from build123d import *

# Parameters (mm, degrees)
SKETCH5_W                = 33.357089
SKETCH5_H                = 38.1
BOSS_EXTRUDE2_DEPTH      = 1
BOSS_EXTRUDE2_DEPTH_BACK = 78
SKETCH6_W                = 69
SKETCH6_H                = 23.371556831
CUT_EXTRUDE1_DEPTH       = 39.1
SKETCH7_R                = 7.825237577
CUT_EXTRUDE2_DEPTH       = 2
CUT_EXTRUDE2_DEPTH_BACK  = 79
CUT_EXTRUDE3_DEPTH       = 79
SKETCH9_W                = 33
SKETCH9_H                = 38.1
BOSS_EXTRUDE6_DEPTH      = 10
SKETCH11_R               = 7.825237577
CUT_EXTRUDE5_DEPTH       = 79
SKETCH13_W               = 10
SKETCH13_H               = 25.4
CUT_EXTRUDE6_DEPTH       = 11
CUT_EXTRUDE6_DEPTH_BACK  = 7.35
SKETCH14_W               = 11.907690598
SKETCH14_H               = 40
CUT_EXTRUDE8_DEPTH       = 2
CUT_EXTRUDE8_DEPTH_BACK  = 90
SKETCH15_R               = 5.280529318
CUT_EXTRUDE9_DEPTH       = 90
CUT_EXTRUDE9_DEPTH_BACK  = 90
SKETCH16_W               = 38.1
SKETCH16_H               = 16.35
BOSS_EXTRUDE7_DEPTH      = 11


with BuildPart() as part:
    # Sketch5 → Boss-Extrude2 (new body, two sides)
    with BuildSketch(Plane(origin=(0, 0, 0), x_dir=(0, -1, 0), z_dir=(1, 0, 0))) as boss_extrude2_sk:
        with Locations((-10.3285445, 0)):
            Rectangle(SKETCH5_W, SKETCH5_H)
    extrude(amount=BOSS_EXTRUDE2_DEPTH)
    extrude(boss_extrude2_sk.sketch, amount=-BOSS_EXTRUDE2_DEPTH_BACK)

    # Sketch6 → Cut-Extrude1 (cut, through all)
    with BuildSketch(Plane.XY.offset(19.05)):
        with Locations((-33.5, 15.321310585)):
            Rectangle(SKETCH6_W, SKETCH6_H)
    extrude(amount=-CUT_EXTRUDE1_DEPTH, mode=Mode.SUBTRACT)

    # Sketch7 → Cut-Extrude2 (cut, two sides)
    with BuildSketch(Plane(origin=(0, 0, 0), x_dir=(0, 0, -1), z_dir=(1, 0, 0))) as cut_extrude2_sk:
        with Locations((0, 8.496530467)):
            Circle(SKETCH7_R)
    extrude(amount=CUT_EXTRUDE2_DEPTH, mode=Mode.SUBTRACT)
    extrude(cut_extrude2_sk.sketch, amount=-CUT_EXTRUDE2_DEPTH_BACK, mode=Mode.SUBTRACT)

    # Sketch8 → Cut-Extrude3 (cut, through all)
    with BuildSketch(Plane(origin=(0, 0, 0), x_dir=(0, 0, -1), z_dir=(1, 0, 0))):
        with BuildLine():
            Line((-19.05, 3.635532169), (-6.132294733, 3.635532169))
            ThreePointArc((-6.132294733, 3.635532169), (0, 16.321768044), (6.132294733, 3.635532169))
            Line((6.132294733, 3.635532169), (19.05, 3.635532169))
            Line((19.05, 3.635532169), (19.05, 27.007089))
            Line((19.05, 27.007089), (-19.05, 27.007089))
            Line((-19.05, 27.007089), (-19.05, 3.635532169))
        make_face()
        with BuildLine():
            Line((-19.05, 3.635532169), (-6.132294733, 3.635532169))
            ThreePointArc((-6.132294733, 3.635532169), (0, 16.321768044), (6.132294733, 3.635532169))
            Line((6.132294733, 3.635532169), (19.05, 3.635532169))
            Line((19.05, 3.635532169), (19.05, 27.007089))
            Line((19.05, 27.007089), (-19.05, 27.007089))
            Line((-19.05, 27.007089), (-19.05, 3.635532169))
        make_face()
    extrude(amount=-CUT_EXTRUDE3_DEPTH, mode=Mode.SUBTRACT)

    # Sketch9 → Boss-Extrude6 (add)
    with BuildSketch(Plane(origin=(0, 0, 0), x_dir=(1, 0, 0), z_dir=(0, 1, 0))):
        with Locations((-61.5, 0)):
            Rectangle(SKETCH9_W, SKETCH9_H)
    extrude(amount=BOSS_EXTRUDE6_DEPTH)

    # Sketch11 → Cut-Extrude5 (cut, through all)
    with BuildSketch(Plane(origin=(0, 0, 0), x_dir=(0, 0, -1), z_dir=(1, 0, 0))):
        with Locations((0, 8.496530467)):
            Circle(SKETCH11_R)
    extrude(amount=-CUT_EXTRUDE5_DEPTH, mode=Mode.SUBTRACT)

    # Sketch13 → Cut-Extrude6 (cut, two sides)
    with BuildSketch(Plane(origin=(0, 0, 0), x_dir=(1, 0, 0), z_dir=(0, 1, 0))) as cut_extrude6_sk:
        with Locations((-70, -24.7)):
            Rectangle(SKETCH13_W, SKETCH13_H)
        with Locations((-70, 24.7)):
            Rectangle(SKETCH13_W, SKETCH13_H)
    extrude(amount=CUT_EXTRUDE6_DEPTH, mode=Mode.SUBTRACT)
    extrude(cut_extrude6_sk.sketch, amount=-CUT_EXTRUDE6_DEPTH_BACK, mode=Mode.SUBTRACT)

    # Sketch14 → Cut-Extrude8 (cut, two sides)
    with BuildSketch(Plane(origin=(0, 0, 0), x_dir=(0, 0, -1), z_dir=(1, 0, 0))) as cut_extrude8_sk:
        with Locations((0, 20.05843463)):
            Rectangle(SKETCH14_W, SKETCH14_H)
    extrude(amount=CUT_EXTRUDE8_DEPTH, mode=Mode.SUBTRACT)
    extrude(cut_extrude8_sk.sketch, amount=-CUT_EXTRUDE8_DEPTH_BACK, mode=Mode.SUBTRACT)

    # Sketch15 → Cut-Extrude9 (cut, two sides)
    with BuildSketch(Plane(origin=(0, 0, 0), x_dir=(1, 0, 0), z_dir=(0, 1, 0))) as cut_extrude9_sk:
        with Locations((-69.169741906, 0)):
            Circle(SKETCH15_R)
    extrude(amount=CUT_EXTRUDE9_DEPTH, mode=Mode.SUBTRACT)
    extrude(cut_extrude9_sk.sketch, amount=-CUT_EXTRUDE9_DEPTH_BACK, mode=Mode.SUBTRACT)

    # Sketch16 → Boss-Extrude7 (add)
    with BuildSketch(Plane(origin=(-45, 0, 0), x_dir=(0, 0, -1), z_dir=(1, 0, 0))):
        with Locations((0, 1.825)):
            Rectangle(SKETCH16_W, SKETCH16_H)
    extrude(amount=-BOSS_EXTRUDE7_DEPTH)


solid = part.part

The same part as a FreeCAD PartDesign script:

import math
import FreeCAD as App
import Part
import Sketcher

V = App.Vector
Q = App.Units.Quantity


def add_polygon(sketch, points):
    """Adds a closed chain of lines whose ends are joined by coincident constraints."""
    first, n = sketch.GeometryCount, len(points)
    for a, b in zip(points, points[1:] + points[:1]):
        sketch.addGeometry(Part.LineSegment(App.Vector(*a, 0), App.Vector(*b, 0)), False)
    for i in range(n):
        sketch.addConstraint(Sketcher.Constraint("Coincident", first + i, 2, first + (i + 1) % n, 1))

doc = App.newDocument("Part")
params = doc.addObject("Spreadsheet::Sheet", "Params")
for row, (alias, value) in enumerate([
    ("sketch1_height", "38.1 mm"),
    ("pad1_length", "1 mm"),
    ("pad1_length2", "78 mm"),
    ("sketch2_width", "69 mm"),
    ("sketch4_height", "38.1 mm"),
    ("sketch5_width", "33 mm"),
    ("sketch5_height", "38.1 mm"),
    ("pad2_length", "10 mm"),
    ("sketch7_width", "10 mm"),
    ("sketch7_height", "25.4 mm"),
    ("sketch8_width", "40 mm"),
    ("sketch10_height", "38.1 mm"),
    ("sketch10_width", "16.35 mm"),
    ("pad3_length", "11 mm"),
], start=1):
    params.set(f"A{row}", alias)
    params.set(f"B{row}", "=" + value)
    params.setAlias(f"B{row}", alias)

body = doc.addObject("PartDesign::Body", "Body")

sketch1 = body.newObject("Sketcher::SketchObject", "Sketch")
sketch1.AttachmentSupport = (doc.getObject("YZ_Plane"), [""])
sketch1.MapMode = "FlatFace"
add_polygon(sketch1, [(27, -19), (27, 19), (-6, 19), (-6, -19)])
sketch1.addConstraint([
    Sketcher.Constraint("Vertical", 0),
    Sketcher.Constraint("Horizontal", 1),
    Sketcher.Constraint("Vertical", 2),
    Sketcher.Constraint("Horizontal", 3),
    Sketcher.Constraint("DistanceY", 0, 1, 0, 2, Q("38.1 mm")),
    Sketcher.Constraint("DistanceY", -1, 1, 0, 2, Q("19.05 mm")),
    Sketcher.Constraint("DistanceX", 1, 2, -1, 1, Q("6.35 mm")),
    Sketcher.Constraint("DistanceX", 1, 2, 1, 1, Q("33.357089 mm")),
])
sketch1.setExpression("Constraints[8]", "Params.sketch1_height")
pad1 = body.newObject("PartDesign::Pad", "Pad")
pad1.Profile = sketch1
pad1.Type = "TwoLengths"
pad1.setExpression("Length", "Params.pad1_length")
pad1.setExpression("Length2", "Params.pad1_length2")

sketch2 = body.newObject("Sketcher::SketchObject", "Sketch001")
sketch2.AttachmentSupport = (doc.getObject("XY_Plane"), [""])
sketch2.MapMode = "FlatFace"
sketch2.AttachmentOffset = App.Placement(V(0, 0, 19.05), App.Rotation())
add_polygon(sketch2, [(-68, 27), (-68, 4), (1, 4), (1, 27)])
sketch2.addConstraint([
    Sketcher.Constraint("Vertical", 0),
    Sketcher.Constraint("Horizontal", 1),
    Sketcher.Constraint("Vertical", 2),
    Sketcher.Constraint("Horizontal", 3),
    Sketcher.Constraint("DistanceX", 1, 1, 1, 2, Q("69 mm")),
    Sketcher.Constraint("DistanceX", 0, 2, -1, 1, Q("68 mm")),
    Sketcher.Constraint("DistanceY", 0, 2, 0, 1, Q("23.371557 mm")),
    Sketcher.Constraint("DistanceY", -1, 1, 2, 2, Q("27.007089 mm")),
])
sketch2.setExpression("Constraints[8]", "Params.sketch2_width")
pocket1 = body.newObject("PartDesign::Pocket", "Pocket")
pocket1.Profile = sketch2
pocket1.Type = "ThroughAll"

sketch3 = body.newObject("Sketcher::SketchObject", "Sketch002")
sketch3.AttachmentSupport = (doc.getObject("YZ_Plane"), [""])
sketch3.MapMode = "FlatFace"
sketch3.addGeometry(Part.Circle(V(8, 0, 0), V(0, 0, 1), 8), False)
sketch3.addConstraint([
    Sketcher.Constraint("PointOnObject", 0, 3, -1),
    Sketcher.Constraint("Diameter", 0, Q("15.650475 mm")),
    Sketcher.Constraint("DistanceX", -1, 1, 0, 3, Q("8.49653 mm")),
])
pocket2 = body.newObject("PartDesign::Pocket", "Pocket001")
pocket2.Profile = sketch3
pocket2.Type = "ThroughAll"
pocket2.Midplane = True

sketch4 = body.newObject("Sketcher::SketchObject", "Sketch003")
sketch4.AttachmentSupport = (doc.getObject("YZ_Plane"), [""])
sketch4.MapMode = "FlatFace"
sketch4.addGeometry([
    Part.LineSegment(V(4, 19, 0), V(4, 6, 0)),
    Part.ArcOfCircle(Part.Circle(V(8, 0, 0), V(0, 0, 1), 8), math.radians(-128), math.radians(128)),
    Part.LineSegment(V(4, -6, 0), V(4, -19, 0)),
    Part.LineSegment(V(4, -19, 0), V(27, -19, 0)),
    Part.LineSegment(V(27, -19, 0), V(27, 19, 0)),
    Part.LineSegment(V(27, 19, 0), V(4, 19, 0)),
], False)
sketch4.addConstraint([
    Sketcher.Constraint("Coincident", 0, 2, 1, 2),
    Sketcher.Constraint("Coincident", 1, 1, 2, 1),
    Sketcher.Constraint("Coincident", 2, 2, 3, 1),
    Sketcher.Constraint("Coincident", 3, 2, 4, 1),
    Sketcher.Constraint("Coincident", 4, 2, 5, 1),
    Sketcher.Constraint("Coincident", 5, 2, 0, 1),
    Sketcher.Constraint("Vertical", 0),
    Sketcher.Constraint("Vertical", 2),
    Sketcher.Constraint("Horizontal", 3),
    Sketcher.Constraint("Vertical", 4),
    Sketcher.Constraint("Horizontal", 5),
    Sketcher.Constraint("Symmetric", 0, 2, 1, 1, -1),
    Sketcher.Constraint("Equal", 0, 2),
    Sketcher.Constraint("DistanceY", 4, 1, 4, 2, Q("38.1 mm")),
    Sketcher.Constraint("Radius", 1, Q("7.825238 mm")),
    Sketcher.Constraint("DistanceX", 0, 2, 1, 3, Q("4.860998 mm")),
    Sketcher.Constraint("DistanceX", 3, 1, 3, 2, Q("23.371557 mm")),
    Sketcher.Constraint("DistanceX", -1, 1, 1, 3, Q("8.49653 mm")),
])
sketch4.setExpression("Constraints[13]", "Params.sketch4_height")
pocket3 = body.newObject("PartDesign::Pocket", "Pocket002")
pocket3.Profile = sketch4
pocket3.Type = "ThroughAll"

sketch5 = body.newObject("Sketcher::SketchObject", "Sketch004")
sketch5.AttachmentSupport = (doc.getObject("XZ_Plane"), [""])
sketch5.MapMode = "FlatFace"
add_polygon(sketch5, [(-78, -19), (-78, 19), (-45, 19), (-45, -19)])
sketch5.addConstraint([
    Sketcher.Constraint("Vertical", 0),
    Sketcher.Constraint("Horizontal", 1),
    Sketcher.Constraint("Vertical", 2),
    Sketcher.Constraint("Horizontal", 3),
    Sketcher.Constraint("DistanceX", 1, 1, 1, 2, Q("33 mm")),
    Sketcher.Constraint("DistanceY", 0, 1, 0, 2, Q("38.1 mm")),
    Sketcher.Constraint("DistanceX", 0, 2, -1, 1, Q("78 mm")),
    Sketcher.Constraint("DistanceY", -1, 1, 0, 2, Q("19.05 mm")),
])
sketch5.setExpression("Constraints[8]", "Params.sketch5_width")
sketch5.setExpression("Constraints[9]", "Params.sketch5_height")
pad2 = body.newObject("PartDesign::Pad", "Pad001")
pad2.Profile = sketch5
pad2.setExpression("Length", "Params.pad2_length")
pad2.Reversed = True

sketch6 = body.newObject("Sketcher::SketchObject", "Sketch005")
sketch6.AttachmentSupport = (doc.getObject("YZ_Plane"), [""])
sketch6.MapMode = "FlatFace"
sketch6.addGeometry(Part.Circle(V(8, 0, 0), V(0, 0, 1), 8), False)
sketch6.addConstraint([
    Sketcher.Constraint("PointOnObject", 0, 3, -1),
    Sketcher.Constraint("Diameter", 0, Q("15.650475 mm")),
    Sketcher.Constraint("DistanceX", -1, 1, 0, 3, Q("8.49653 mm")),
])
pocket4 = body.newObject("PartDesign::Pocket", "Pocket003")
pocket4.Profile = sketch6
pocket4.Type = "ThroughAll"

sketch7 = body.newObject("Sketcher::SketchObject", "Sketch006")
sketch7.AttachmentSupport = (doc.getObject("XZ_Plane"), [""])
sketch7.MapMode = "FlatFace"
add_polygon(sketch7, [(-75, 12), (-75, 37), (-65, 37), (-65, 12)])
add_polygon(sketch7, [(-75, -37), (-75, -12), (-65, -12), (-65, -37)])
sketch7.addConstraint([
    Sketcher.Constraint("Vertical", 0),
    Sketcher.Constraint("Horizontal", 1),
    Sketcher.Constraint("Vertical", 2),
    Sketcher.Constraint("Horizontal", 3),
    Sketcher.Constraint("Vertical", 4),
    Sketcher.Constraint("Horizontal", 5),
    Sketcher.Constraint("Vertical", 6),
    Sketcher.Constraint("Horizontal", 7),
    Sketcher.Constraint("Symmetric", 3, 2, 4, 2, -1),
    Sketcher.Constraint("Symmetric", 1, 2, 6, 2, -1),
    Sketcher.Constraint("DistanceX", 1, 1, 1, 2, Q("10 mm")),
    Sketcher.Constraint("DistanceY", 0, 1, 0, 2, Q("25.4 mm")),
    Sketcher.Constraint("DistanceX", 0, 2, -1, 1, Q("75 mm")),
    Sketcher.Constraint("DistanceY", -1, 1, 2, 2, Q("12 mm")),
])
sketch7.setExpression("Constraints[18]", "Params.sketch7_width")
sketch7.setExpression("Constraints[19]", "Params.sketch7_height")
pocket5 = body.newObject("PartDesign::Pocket", "Pocket004")
pocket5.Profile = sketch7
pocket5.Type = "ThroughAll"
pocket5.Midplane = True

sketch8 = body.newObject("Sketcher::SketchObject", "Sketch007")
sketch8.AttachmentSupport = (doc.getObject("YZ_Plane"), [""])
sketch8.MapMode = "FlatFace"
add_polygon(sketch8, [(40, 6), (0, 6), (0, -6), (40, -6)])
sketch8.addConstraint([
    Sketcher.Constraint("Horizontal", 0),
    Sketcher.Constraint("Vertical", 1),
    Sketcher.Constraint("Horizontal", 2),
    Sketcher.Constraint("Vertical", 3),
    Sketcher.Constraint("DistanceX", 0, 2, 0, 1, Q("40 mm")),
    Sketcher.Constraint("DistanceY", 1, 2, 1, 1, Q("11.907691 mm")),
    Sketcher.Constraint("DistanceX", -1, 1, 0, 2, Q("0.058435 mm")),
    Sketcher.Constraint("DistanceY", -1, 1, 0, 2, Q("5.953845 mm")),
])
sketch8.setExpression("Constraints[8]", "Params.sketch8_width")
pocket6 = body.newObject("PartDesign::Pocket", "Pocket005")
pocket6.Profile = sketch8
pocket6.Type = "ThroughAll"
pocket6.Midplane = True

sketch9 = body.newObject("Sketcher::SketchObject", "Sketch008")
sketch9.AttachmentSupport = (doc.getObject("XZ_Plane"), [""])
sketch9.MapMode = "FlatFace"
sketch9.addGeometry(Part.Circle(V(-69, 0, 0), V(0, 0, 1), 5), False)
sketch9.addConstraint([
    Sketcher.Constraint("PointOnObject", 0, 3, -1),
    Sketcher.Constraint("Diameter", 0, Q("10.561059 mm")),
    Sketcher.Constraint("DistanceX", 0, 3, -1, 1, Q("69.169742 mm")),
])
pocket7 = body.newObject("PartDesign::Pocket", "Pocket006")
pocket7.Profile = sketch9
pocket7.Type = "ThroughAll"
pocket7.Midplane = True

sketch10 = body.newObject("Sketcher::SketchObject", "Sketch009")
sketch10.AttachmentSupport = (doc.getObject("YZ_Plane"), [""])
sketch10.MapMode = "FlatFace"
sketch10.AttachmentOffset = App.Placement(V(0, 0, -45), App.Rotation())
add_polygon(sketch10, [(10, 19), (-6, 19), (-6, -19), (10, -19)])
sketch10.addConstraint([
    Sketcher.Constraint("Horizontal", 0),
    Sketcher.Constraint("Vertical", 1),
    Sketcher.Constraint("Horizontal", 2),
    Sketcher.Constraint("Vertical", 3),
    Sketcher.Constraint("DistanceY", 1, 2, 1, 1, Q("38.1 mm")),
    Sketcher.Constraint("DistanceX", -1, 1, 2, 2, Q("10 mm")),
    Sketcher.Constraint("DistanceX", 0, 2, 0, 1, Q("16.35 mm")),
    Sketcher.Constraint("DistanceY", -1, 1, 0, 2, Q("19.05 mm")),
])
sketch10.setExpression("Constraints[8]", "Params.sketch10_height")
sketch10.setExpression("Constraints[10]", "Params.sketch10_width")
pad3 = body.newObject("PartDesign::Pad", "Pad002")
pad3.Profile = sketch10
pad3.setExpression("Length", "Params.pad3_length")
pad3.Reversed = True

doc.recompute()
